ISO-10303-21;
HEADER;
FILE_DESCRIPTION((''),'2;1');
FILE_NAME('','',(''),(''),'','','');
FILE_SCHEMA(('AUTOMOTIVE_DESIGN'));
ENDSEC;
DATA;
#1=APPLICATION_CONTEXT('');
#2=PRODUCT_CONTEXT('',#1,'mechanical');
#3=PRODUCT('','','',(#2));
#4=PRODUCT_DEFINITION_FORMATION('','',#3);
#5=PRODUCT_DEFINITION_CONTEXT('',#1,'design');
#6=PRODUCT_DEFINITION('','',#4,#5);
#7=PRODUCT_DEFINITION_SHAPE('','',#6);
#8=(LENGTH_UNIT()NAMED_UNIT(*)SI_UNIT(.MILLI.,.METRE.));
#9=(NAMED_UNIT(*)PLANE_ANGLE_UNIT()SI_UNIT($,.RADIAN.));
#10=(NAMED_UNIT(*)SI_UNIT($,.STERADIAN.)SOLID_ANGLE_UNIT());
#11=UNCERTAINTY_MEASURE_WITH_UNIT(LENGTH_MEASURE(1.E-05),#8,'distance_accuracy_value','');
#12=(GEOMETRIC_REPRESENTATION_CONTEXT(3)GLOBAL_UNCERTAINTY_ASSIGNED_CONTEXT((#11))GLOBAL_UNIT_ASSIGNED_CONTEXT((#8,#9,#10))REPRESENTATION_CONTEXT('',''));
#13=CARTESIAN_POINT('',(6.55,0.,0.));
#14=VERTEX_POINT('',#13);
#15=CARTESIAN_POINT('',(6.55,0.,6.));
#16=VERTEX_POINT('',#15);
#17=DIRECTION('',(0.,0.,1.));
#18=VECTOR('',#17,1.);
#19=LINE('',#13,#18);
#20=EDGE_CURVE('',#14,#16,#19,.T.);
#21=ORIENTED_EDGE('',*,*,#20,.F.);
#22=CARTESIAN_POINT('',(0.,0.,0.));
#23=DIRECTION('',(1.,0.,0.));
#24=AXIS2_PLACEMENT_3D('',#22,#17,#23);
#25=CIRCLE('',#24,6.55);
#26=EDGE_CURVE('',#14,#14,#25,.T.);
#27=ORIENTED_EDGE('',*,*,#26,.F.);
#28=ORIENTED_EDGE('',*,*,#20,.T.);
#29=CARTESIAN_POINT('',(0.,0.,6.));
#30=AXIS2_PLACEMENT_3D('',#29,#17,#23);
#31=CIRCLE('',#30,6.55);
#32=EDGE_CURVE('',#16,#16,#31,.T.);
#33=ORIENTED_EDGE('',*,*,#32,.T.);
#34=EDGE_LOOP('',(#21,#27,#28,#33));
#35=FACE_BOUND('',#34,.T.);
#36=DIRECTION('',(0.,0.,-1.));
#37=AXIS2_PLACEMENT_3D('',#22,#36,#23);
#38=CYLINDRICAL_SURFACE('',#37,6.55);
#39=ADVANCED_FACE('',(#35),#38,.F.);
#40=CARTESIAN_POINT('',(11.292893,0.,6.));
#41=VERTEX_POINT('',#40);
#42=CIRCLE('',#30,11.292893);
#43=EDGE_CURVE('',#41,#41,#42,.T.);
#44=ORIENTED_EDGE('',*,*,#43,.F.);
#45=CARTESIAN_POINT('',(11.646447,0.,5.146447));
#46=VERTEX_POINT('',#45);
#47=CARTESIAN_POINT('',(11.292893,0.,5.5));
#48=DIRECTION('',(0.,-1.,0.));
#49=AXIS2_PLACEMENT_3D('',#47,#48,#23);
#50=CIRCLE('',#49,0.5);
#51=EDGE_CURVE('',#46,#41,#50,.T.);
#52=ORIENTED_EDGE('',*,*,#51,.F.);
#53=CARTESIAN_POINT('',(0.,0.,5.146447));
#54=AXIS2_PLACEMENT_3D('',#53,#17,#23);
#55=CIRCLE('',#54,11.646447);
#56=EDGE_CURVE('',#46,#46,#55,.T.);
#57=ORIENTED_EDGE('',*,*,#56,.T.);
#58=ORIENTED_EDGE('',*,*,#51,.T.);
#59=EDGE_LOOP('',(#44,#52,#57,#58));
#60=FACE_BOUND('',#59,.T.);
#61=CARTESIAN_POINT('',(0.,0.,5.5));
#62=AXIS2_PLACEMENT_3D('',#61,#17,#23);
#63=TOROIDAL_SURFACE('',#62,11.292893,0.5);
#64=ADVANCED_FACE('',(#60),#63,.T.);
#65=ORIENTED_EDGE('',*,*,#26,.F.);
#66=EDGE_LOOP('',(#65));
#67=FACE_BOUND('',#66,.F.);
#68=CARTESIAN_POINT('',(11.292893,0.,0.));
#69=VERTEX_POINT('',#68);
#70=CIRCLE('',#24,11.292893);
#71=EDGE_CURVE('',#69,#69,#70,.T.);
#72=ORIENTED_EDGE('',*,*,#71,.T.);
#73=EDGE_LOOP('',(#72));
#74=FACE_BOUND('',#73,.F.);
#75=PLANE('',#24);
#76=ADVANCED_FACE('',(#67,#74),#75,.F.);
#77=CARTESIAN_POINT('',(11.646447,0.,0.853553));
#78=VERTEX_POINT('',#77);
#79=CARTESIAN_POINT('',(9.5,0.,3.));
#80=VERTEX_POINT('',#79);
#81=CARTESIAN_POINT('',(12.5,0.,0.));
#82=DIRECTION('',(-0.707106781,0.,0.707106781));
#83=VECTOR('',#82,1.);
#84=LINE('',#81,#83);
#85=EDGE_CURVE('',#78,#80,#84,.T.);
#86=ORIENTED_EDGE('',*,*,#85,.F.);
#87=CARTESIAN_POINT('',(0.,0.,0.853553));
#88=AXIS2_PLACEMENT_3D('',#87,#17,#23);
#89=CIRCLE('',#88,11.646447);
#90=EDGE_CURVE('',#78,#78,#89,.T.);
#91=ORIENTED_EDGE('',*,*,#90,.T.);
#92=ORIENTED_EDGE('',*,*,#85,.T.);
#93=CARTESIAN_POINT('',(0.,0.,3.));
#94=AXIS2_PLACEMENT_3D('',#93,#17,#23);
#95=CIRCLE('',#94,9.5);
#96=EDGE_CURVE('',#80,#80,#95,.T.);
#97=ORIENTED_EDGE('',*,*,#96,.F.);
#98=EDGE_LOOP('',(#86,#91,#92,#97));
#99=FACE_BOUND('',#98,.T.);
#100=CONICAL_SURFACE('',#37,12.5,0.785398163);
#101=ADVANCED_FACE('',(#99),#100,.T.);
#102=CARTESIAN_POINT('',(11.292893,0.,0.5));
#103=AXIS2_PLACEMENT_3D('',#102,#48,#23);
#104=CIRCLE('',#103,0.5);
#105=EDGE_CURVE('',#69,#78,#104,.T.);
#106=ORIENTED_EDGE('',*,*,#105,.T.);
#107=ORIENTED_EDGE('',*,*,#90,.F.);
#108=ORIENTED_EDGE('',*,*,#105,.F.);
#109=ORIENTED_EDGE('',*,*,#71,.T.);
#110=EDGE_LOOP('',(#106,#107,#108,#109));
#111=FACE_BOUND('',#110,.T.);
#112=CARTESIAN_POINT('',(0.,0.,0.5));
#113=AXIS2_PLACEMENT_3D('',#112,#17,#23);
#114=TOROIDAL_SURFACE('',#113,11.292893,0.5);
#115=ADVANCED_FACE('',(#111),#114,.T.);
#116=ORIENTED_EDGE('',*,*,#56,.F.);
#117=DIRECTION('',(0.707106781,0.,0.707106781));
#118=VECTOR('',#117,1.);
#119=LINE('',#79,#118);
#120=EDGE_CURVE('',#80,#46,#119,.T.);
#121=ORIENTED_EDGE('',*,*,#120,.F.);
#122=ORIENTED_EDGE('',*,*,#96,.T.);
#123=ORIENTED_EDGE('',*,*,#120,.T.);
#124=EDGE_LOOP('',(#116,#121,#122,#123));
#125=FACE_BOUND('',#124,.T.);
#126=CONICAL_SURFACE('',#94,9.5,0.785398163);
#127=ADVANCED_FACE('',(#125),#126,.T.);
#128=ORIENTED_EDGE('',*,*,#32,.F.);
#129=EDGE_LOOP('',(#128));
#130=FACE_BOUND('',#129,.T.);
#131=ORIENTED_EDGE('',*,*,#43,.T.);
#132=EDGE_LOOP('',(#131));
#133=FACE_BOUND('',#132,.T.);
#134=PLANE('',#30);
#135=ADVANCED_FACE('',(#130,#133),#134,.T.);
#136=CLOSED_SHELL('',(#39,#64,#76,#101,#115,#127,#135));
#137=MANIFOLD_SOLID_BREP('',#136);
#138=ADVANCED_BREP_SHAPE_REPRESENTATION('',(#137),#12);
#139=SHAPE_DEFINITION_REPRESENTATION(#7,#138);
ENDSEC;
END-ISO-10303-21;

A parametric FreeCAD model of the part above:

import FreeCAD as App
import Part
import Sketcher

V = App.Vector
Q = App.Units.Quantity


def edges_at(feature, points):
    """Names of the edges that pass closest to the given points."""
    edges = feature.Shape.Edges
    near = lambda p: min(range(len(edges)), key=lambda i: edges[i].distToShape(Part.Vertex(*p))[0])
    return sorted({f"Edge{near(p) + 1}" for p in points})


def add_polygon(sketch, points):
    """Adds a closed chain of lines whose ends are joined by coincident constraints."""
    first, n = sketch.GeometryCount, len(points)
    for a, b in zip(points, points[1:] + points[:1]):
        sketch.addGeometry(Part.LineSegment(App.Vector(*a, 0), App.Vector(*b, 0)), False)
    for i in range(n):
        sketch.addConstraint(Sketcher.Constraint("Coincident", first + i, 2, first + (i + 1) % n, 1))

doc = App.newDocument("Part")
body = doc.addObject("PartDesign::Body", "Body")

sketch1 = body.newObject("Sketcher::SketchObject", "Sketch")
sketch1.AttachmentSupport = (doc.getObject("XY_Plane"), [""])
sketch1.MapMode = "FlatFace"
sketch1.addGeometry(Part.Circle(V(0, 0, 0), V(0, 0, 1), 12), False)
sketch1.addGeometry(Part.Circle(V(0, 0, 0), V(0, 0, 1), 7), False)
sketch1.addConstraint(Sketcher.Constraint("Coincident", 0, 3, -1, 1))
sketch1.addConstraint(Sketcher.Constraint("Coincident", 1, 3, -1, 1))
sketch1.addConstraint(Sketcher.Constraint("Diameter", 0, Q("25 mm")))
sketch1.addConstraint(Sketcher.Constraint("Diameter", 1, Q("13.1 mm")))
pad1 = body.newObject("PartDesign::Pad", "Pad")
pad1.Profile = sketch1
pad1.Length = 6

sketch2 = body.newObject("Sketcher::SketchObject", "Sketch001")
sketch2.AttachmentSupport = (doc.getObject("XZ_Plane"), [""])
sketch2.MapMode = "FlatFace"
add_polygon(sketch2, [(12.5, 6), (12.5, 0), (9.5, 3)])
sketch2.addConstraint(Sketcher.Constraint("Vertical", 0))
sketch2.addConstraint(Sketcher.Constraint("PointOnObject", 0, 2, -1))
sketch2.addConstraint(Sketcher.Constraint("Perpendicular", 1, 2))
sketch2.addConstraint(Sketcher.Constraint("Equal", 1, 2))
sketch2.addConstraint(Sketcher.Constraint("DistanceY", 0, 2, 0, 1, Q("6 mm")))
sketch2.addConstraint(Sketcher.Constraint("DistanceX", -1, 1, 0, 2, Q("12.5 mm")))
groove = body.newObject("PartDesign::Groove", "Groove")
groove.Profile = sketch2
groove.ReferenceAxis = (sketch2, ["V_Axis"])
groove.Angle = 360
doc.recompute()

fillet = body.newObject("PartDesign::Fillet", "Fillet")
fillet.Base = (groove, edges_at(groove, [(-11.654, -4.52, 0), (-11.654, -4.52, 6)]))
fillet.Radius = 0.5

doc.recompute()
